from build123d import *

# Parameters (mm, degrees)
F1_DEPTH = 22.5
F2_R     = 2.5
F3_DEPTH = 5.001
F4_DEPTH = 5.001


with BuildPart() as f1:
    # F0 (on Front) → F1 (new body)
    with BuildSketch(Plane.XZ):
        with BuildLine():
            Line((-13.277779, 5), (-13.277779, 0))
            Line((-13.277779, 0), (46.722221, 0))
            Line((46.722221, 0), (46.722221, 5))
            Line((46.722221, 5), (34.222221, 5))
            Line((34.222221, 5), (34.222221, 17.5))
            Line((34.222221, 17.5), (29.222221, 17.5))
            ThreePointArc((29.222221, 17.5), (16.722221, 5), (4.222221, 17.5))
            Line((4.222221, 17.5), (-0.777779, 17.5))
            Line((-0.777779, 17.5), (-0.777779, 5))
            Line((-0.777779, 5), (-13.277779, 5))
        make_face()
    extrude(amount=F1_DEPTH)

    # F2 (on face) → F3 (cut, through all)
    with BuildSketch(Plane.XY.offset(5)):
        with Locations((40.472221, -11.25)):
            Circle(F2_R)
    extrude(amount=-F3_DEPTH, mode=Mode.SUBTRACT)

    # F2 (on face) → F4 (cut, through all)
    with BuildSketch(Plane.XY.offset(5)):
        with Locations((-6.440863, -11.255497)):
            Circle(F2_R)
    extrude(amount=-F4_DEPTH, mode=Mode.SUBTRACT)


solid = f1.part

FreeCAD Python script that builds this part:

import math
import FreeCAD as App
import Part
import Sketcher

V = App.Vector

doc = App.newDocument("Part")
body = doc.addObject("PartDesign::Body", "Body")

sketch1 = body.newObject("Sketcher::SketchObject", "Sketch")
sketch1.AttachmentSupport = (doc.getObject("XZ_Plane"), [""])
sketch1.MapMode = "FlatFace"
sketch1.addGeometry(Part.LineSegment(V(-13.277779, 5, 0), V(-13.277779, 0, 0)), False)
sketch1.addGeometry(Part.LineSegment(V(-13.277779, 0, 0), V(46.722221, 0, 0)), False)
sketch1.addGeometry(Part.LineSegment(V(46.722221, 0, 0), V(46.722221, 5, 0)), False)
sketch1.addGeometry(Part.LineSegment(V(46.722221, 5, 0), V(34.222221, 5, 0)), False)
sketch1.addGeometry(Part.LineSegment(V(34.222221, 5, 0), V(34.222221, 17.5, 0)), False)
sketch1.addGeometry(Part.LineSegment(V(34.222221, 17.5, 0), V(29.222221, 17.5, 0)), False)
sketch1.addGeometry(Part.ArcOfCircle(Part.Circle(V(16.722221, 17.5, 0), V(0, 0, 1), 12.5), math.radians(180), math.radians(360)), False)
sketch1.addGeometry(Part.LineSegment(V(4.222221, 17.5, 0), V(-0.777779, 17.5, 0)), False)
sketch1.addGeometry(Part.LineSegment(V(-0.777779, 17.5, 0), V(-0.777779, 5, 0)), False)
sketch1.addGeometry(Part.LineSegment(V(-0.777779, 5, 0), V(-13.277779, 5, 0)), False)
sketch1.addConstraint(Sketcher.Constraint("Coincident", 0, 2, 1, 1))
sketch1.addConstraint(Sketcher.Constraint("Coincident", 1, 2, 2, 1))
sketch1.addConstraint(Sketcher.Constraint("Coincident", 2, 2, 3, 1))
sketch1.addConstraint(Sketcher.Constraint("Coincident", 3, 2, 4, 1))
sketch1.addConstraint(Sketcher.Constraint("Coincident", 4, 2, 5, 1))
sketch1.addConstraint(Sketcher.Constraint("Coincident", 5, 2, 6, 2))
sketch1.addConstraint(Sketcher.Constraint("Coincident", 6, 1, 7, 1))
sketch1.addConstraint(Sketcher.Constraint("Coincident", 7, 2, 8, 1))
sketch1.addConstraint(Sketcher.Constraint("Coincident", 8, 2, 9, 1))
sketch1.addConstraint(Sketcher.Constraint("Coincident", 9, 2, 0, 1))
sketch1.addConstraint(Sketcher.Constraint("Vertical", 0))
sketch1.addConstraint(Sketcher.Constraint("Horizontal", 1))
sketch1.addConstraint(Sketcher.Constraint("Vertical", 2))
sketch1.addConstraint(Sketcher.Constraint("Horizontal", 3))
sketch1.addConstraint(Sketcher.Constraint("Vertical", 4))
sketch1.addConstraint(Sketcher.Constraint("Horizontal", 5))
sketch1.addConstraint(Sketcher.Constraint("Horizontal", 7))
sketch1.addConstraint(Sketcher.Constraint("Vertical", 8))
sketch1.addConstraint(Sketcher.Constraint("Horizontal", 9))
sketch1.addConstraint(Sketcher.Constraint("PointOnObject", 0, 2, -1))
sketch1.addConstraint(Sketcher.Constraint("Horizontal", 6, 3, 4, 2))
sketch1.addConstraint(Sketcher.Constraint("Horizontal", 5, 2, 6, 1))
sketch1.addConstraint(Sketcher.Constraint("Horizontal", 3, 2, 8, 2))
sketch1.addConstraint(Sketcher.Constraint("Equal", 5, 7))
sketch1.addConstraint(Sketcher.Constraint("Equal", 3, 9))
sketch1.addConstraint(Sketcher.Constraint("Equal", 7, 0))
sketch1.addConstraint(Sketcher.Constraint("Equal", 9, 4))
sketch1.addConstraint(Sketcher.Constraint("Radius", 6, 12.5))
sketch1.addConstraint(Sketcher.Constraint("DistanceX", 1, 1, 1, 2, 60.0))
sketch1.addConstraint(Sketcher.Constraint("DistanceX", 5, 2, 5, 1, 5.0))
sketch1.addConstraint(Sketcher.Constraint("DistanceX", -1, 1, 6, 3, 16.722221))
pad1 = body.newObject("PartDesign::Pad", "Pad")
pad1.Profile = sketch1
pad1.Length = 22.5

sketch2 = body.newObject("Sketcher::SketchObject", "Sketch001")
sketch2.AttachmentSupport = (doc.getObject("XY_Plane"), [""])
sketch2.MapMode = "FlatFace"
sketch2.AttachmentOffset = App.Placement(V(0, 0, 5), App.Rotation())
sketch2.addGeometry(Part.Circle(V(40.472221, -11.25, 0), V(0, 0, 1), 2.5), False)
sketch2.addConstraint(Sketcher.Constraint("Diameter", 0, 5.0))
sketch2.addConstraint(Sketcher.Constraint("DistanceY", 0, 3, -1, 1, 11.25))
sketch2.addConstraint(Sketcher.Constraint("DistanceX", -1, 1, 0, 3, 40.472221))
pocket1 = body.newObject("PartDesign::Pocket", "Pocket")
pocket1.Profile = sketch2
pocket1.Type = "ThroughAll"

sketch3 = body.newObject("Sketcher::SketchObject", "Sketch002")
sketch3.AttachmentSupport = (doc.getObject("XY_Plane"), [""])
sketch3.MapMode = "FlatFace"
sketch3.AttachmentOffset = App.Placement(V(0, 0, 5), App.Rotation())
sketch3.addGeometry(Part.Circle(V(-6.440863, -11.255497, 0), V(0, 0, 1), 2.5), False)
sketch3.addConstraint(Sketcher.Constraint("Diameter", 0, 5.0))
sketch3.addConstraint(Sketcher.Constraint("DistanceX", 0, 3, -1, 1, 6.440863))
sketch3.addConstraint(Sketcher.Constraint("DistanceY", 0, 3, -1, 1, 11.255497))
pocket2 = body.newObject("PartDesign::Pocket", "Pocket001")
pocket2.Profile = sketch3
pocket2.Type = "ThroughAll"

doc.recompute()
